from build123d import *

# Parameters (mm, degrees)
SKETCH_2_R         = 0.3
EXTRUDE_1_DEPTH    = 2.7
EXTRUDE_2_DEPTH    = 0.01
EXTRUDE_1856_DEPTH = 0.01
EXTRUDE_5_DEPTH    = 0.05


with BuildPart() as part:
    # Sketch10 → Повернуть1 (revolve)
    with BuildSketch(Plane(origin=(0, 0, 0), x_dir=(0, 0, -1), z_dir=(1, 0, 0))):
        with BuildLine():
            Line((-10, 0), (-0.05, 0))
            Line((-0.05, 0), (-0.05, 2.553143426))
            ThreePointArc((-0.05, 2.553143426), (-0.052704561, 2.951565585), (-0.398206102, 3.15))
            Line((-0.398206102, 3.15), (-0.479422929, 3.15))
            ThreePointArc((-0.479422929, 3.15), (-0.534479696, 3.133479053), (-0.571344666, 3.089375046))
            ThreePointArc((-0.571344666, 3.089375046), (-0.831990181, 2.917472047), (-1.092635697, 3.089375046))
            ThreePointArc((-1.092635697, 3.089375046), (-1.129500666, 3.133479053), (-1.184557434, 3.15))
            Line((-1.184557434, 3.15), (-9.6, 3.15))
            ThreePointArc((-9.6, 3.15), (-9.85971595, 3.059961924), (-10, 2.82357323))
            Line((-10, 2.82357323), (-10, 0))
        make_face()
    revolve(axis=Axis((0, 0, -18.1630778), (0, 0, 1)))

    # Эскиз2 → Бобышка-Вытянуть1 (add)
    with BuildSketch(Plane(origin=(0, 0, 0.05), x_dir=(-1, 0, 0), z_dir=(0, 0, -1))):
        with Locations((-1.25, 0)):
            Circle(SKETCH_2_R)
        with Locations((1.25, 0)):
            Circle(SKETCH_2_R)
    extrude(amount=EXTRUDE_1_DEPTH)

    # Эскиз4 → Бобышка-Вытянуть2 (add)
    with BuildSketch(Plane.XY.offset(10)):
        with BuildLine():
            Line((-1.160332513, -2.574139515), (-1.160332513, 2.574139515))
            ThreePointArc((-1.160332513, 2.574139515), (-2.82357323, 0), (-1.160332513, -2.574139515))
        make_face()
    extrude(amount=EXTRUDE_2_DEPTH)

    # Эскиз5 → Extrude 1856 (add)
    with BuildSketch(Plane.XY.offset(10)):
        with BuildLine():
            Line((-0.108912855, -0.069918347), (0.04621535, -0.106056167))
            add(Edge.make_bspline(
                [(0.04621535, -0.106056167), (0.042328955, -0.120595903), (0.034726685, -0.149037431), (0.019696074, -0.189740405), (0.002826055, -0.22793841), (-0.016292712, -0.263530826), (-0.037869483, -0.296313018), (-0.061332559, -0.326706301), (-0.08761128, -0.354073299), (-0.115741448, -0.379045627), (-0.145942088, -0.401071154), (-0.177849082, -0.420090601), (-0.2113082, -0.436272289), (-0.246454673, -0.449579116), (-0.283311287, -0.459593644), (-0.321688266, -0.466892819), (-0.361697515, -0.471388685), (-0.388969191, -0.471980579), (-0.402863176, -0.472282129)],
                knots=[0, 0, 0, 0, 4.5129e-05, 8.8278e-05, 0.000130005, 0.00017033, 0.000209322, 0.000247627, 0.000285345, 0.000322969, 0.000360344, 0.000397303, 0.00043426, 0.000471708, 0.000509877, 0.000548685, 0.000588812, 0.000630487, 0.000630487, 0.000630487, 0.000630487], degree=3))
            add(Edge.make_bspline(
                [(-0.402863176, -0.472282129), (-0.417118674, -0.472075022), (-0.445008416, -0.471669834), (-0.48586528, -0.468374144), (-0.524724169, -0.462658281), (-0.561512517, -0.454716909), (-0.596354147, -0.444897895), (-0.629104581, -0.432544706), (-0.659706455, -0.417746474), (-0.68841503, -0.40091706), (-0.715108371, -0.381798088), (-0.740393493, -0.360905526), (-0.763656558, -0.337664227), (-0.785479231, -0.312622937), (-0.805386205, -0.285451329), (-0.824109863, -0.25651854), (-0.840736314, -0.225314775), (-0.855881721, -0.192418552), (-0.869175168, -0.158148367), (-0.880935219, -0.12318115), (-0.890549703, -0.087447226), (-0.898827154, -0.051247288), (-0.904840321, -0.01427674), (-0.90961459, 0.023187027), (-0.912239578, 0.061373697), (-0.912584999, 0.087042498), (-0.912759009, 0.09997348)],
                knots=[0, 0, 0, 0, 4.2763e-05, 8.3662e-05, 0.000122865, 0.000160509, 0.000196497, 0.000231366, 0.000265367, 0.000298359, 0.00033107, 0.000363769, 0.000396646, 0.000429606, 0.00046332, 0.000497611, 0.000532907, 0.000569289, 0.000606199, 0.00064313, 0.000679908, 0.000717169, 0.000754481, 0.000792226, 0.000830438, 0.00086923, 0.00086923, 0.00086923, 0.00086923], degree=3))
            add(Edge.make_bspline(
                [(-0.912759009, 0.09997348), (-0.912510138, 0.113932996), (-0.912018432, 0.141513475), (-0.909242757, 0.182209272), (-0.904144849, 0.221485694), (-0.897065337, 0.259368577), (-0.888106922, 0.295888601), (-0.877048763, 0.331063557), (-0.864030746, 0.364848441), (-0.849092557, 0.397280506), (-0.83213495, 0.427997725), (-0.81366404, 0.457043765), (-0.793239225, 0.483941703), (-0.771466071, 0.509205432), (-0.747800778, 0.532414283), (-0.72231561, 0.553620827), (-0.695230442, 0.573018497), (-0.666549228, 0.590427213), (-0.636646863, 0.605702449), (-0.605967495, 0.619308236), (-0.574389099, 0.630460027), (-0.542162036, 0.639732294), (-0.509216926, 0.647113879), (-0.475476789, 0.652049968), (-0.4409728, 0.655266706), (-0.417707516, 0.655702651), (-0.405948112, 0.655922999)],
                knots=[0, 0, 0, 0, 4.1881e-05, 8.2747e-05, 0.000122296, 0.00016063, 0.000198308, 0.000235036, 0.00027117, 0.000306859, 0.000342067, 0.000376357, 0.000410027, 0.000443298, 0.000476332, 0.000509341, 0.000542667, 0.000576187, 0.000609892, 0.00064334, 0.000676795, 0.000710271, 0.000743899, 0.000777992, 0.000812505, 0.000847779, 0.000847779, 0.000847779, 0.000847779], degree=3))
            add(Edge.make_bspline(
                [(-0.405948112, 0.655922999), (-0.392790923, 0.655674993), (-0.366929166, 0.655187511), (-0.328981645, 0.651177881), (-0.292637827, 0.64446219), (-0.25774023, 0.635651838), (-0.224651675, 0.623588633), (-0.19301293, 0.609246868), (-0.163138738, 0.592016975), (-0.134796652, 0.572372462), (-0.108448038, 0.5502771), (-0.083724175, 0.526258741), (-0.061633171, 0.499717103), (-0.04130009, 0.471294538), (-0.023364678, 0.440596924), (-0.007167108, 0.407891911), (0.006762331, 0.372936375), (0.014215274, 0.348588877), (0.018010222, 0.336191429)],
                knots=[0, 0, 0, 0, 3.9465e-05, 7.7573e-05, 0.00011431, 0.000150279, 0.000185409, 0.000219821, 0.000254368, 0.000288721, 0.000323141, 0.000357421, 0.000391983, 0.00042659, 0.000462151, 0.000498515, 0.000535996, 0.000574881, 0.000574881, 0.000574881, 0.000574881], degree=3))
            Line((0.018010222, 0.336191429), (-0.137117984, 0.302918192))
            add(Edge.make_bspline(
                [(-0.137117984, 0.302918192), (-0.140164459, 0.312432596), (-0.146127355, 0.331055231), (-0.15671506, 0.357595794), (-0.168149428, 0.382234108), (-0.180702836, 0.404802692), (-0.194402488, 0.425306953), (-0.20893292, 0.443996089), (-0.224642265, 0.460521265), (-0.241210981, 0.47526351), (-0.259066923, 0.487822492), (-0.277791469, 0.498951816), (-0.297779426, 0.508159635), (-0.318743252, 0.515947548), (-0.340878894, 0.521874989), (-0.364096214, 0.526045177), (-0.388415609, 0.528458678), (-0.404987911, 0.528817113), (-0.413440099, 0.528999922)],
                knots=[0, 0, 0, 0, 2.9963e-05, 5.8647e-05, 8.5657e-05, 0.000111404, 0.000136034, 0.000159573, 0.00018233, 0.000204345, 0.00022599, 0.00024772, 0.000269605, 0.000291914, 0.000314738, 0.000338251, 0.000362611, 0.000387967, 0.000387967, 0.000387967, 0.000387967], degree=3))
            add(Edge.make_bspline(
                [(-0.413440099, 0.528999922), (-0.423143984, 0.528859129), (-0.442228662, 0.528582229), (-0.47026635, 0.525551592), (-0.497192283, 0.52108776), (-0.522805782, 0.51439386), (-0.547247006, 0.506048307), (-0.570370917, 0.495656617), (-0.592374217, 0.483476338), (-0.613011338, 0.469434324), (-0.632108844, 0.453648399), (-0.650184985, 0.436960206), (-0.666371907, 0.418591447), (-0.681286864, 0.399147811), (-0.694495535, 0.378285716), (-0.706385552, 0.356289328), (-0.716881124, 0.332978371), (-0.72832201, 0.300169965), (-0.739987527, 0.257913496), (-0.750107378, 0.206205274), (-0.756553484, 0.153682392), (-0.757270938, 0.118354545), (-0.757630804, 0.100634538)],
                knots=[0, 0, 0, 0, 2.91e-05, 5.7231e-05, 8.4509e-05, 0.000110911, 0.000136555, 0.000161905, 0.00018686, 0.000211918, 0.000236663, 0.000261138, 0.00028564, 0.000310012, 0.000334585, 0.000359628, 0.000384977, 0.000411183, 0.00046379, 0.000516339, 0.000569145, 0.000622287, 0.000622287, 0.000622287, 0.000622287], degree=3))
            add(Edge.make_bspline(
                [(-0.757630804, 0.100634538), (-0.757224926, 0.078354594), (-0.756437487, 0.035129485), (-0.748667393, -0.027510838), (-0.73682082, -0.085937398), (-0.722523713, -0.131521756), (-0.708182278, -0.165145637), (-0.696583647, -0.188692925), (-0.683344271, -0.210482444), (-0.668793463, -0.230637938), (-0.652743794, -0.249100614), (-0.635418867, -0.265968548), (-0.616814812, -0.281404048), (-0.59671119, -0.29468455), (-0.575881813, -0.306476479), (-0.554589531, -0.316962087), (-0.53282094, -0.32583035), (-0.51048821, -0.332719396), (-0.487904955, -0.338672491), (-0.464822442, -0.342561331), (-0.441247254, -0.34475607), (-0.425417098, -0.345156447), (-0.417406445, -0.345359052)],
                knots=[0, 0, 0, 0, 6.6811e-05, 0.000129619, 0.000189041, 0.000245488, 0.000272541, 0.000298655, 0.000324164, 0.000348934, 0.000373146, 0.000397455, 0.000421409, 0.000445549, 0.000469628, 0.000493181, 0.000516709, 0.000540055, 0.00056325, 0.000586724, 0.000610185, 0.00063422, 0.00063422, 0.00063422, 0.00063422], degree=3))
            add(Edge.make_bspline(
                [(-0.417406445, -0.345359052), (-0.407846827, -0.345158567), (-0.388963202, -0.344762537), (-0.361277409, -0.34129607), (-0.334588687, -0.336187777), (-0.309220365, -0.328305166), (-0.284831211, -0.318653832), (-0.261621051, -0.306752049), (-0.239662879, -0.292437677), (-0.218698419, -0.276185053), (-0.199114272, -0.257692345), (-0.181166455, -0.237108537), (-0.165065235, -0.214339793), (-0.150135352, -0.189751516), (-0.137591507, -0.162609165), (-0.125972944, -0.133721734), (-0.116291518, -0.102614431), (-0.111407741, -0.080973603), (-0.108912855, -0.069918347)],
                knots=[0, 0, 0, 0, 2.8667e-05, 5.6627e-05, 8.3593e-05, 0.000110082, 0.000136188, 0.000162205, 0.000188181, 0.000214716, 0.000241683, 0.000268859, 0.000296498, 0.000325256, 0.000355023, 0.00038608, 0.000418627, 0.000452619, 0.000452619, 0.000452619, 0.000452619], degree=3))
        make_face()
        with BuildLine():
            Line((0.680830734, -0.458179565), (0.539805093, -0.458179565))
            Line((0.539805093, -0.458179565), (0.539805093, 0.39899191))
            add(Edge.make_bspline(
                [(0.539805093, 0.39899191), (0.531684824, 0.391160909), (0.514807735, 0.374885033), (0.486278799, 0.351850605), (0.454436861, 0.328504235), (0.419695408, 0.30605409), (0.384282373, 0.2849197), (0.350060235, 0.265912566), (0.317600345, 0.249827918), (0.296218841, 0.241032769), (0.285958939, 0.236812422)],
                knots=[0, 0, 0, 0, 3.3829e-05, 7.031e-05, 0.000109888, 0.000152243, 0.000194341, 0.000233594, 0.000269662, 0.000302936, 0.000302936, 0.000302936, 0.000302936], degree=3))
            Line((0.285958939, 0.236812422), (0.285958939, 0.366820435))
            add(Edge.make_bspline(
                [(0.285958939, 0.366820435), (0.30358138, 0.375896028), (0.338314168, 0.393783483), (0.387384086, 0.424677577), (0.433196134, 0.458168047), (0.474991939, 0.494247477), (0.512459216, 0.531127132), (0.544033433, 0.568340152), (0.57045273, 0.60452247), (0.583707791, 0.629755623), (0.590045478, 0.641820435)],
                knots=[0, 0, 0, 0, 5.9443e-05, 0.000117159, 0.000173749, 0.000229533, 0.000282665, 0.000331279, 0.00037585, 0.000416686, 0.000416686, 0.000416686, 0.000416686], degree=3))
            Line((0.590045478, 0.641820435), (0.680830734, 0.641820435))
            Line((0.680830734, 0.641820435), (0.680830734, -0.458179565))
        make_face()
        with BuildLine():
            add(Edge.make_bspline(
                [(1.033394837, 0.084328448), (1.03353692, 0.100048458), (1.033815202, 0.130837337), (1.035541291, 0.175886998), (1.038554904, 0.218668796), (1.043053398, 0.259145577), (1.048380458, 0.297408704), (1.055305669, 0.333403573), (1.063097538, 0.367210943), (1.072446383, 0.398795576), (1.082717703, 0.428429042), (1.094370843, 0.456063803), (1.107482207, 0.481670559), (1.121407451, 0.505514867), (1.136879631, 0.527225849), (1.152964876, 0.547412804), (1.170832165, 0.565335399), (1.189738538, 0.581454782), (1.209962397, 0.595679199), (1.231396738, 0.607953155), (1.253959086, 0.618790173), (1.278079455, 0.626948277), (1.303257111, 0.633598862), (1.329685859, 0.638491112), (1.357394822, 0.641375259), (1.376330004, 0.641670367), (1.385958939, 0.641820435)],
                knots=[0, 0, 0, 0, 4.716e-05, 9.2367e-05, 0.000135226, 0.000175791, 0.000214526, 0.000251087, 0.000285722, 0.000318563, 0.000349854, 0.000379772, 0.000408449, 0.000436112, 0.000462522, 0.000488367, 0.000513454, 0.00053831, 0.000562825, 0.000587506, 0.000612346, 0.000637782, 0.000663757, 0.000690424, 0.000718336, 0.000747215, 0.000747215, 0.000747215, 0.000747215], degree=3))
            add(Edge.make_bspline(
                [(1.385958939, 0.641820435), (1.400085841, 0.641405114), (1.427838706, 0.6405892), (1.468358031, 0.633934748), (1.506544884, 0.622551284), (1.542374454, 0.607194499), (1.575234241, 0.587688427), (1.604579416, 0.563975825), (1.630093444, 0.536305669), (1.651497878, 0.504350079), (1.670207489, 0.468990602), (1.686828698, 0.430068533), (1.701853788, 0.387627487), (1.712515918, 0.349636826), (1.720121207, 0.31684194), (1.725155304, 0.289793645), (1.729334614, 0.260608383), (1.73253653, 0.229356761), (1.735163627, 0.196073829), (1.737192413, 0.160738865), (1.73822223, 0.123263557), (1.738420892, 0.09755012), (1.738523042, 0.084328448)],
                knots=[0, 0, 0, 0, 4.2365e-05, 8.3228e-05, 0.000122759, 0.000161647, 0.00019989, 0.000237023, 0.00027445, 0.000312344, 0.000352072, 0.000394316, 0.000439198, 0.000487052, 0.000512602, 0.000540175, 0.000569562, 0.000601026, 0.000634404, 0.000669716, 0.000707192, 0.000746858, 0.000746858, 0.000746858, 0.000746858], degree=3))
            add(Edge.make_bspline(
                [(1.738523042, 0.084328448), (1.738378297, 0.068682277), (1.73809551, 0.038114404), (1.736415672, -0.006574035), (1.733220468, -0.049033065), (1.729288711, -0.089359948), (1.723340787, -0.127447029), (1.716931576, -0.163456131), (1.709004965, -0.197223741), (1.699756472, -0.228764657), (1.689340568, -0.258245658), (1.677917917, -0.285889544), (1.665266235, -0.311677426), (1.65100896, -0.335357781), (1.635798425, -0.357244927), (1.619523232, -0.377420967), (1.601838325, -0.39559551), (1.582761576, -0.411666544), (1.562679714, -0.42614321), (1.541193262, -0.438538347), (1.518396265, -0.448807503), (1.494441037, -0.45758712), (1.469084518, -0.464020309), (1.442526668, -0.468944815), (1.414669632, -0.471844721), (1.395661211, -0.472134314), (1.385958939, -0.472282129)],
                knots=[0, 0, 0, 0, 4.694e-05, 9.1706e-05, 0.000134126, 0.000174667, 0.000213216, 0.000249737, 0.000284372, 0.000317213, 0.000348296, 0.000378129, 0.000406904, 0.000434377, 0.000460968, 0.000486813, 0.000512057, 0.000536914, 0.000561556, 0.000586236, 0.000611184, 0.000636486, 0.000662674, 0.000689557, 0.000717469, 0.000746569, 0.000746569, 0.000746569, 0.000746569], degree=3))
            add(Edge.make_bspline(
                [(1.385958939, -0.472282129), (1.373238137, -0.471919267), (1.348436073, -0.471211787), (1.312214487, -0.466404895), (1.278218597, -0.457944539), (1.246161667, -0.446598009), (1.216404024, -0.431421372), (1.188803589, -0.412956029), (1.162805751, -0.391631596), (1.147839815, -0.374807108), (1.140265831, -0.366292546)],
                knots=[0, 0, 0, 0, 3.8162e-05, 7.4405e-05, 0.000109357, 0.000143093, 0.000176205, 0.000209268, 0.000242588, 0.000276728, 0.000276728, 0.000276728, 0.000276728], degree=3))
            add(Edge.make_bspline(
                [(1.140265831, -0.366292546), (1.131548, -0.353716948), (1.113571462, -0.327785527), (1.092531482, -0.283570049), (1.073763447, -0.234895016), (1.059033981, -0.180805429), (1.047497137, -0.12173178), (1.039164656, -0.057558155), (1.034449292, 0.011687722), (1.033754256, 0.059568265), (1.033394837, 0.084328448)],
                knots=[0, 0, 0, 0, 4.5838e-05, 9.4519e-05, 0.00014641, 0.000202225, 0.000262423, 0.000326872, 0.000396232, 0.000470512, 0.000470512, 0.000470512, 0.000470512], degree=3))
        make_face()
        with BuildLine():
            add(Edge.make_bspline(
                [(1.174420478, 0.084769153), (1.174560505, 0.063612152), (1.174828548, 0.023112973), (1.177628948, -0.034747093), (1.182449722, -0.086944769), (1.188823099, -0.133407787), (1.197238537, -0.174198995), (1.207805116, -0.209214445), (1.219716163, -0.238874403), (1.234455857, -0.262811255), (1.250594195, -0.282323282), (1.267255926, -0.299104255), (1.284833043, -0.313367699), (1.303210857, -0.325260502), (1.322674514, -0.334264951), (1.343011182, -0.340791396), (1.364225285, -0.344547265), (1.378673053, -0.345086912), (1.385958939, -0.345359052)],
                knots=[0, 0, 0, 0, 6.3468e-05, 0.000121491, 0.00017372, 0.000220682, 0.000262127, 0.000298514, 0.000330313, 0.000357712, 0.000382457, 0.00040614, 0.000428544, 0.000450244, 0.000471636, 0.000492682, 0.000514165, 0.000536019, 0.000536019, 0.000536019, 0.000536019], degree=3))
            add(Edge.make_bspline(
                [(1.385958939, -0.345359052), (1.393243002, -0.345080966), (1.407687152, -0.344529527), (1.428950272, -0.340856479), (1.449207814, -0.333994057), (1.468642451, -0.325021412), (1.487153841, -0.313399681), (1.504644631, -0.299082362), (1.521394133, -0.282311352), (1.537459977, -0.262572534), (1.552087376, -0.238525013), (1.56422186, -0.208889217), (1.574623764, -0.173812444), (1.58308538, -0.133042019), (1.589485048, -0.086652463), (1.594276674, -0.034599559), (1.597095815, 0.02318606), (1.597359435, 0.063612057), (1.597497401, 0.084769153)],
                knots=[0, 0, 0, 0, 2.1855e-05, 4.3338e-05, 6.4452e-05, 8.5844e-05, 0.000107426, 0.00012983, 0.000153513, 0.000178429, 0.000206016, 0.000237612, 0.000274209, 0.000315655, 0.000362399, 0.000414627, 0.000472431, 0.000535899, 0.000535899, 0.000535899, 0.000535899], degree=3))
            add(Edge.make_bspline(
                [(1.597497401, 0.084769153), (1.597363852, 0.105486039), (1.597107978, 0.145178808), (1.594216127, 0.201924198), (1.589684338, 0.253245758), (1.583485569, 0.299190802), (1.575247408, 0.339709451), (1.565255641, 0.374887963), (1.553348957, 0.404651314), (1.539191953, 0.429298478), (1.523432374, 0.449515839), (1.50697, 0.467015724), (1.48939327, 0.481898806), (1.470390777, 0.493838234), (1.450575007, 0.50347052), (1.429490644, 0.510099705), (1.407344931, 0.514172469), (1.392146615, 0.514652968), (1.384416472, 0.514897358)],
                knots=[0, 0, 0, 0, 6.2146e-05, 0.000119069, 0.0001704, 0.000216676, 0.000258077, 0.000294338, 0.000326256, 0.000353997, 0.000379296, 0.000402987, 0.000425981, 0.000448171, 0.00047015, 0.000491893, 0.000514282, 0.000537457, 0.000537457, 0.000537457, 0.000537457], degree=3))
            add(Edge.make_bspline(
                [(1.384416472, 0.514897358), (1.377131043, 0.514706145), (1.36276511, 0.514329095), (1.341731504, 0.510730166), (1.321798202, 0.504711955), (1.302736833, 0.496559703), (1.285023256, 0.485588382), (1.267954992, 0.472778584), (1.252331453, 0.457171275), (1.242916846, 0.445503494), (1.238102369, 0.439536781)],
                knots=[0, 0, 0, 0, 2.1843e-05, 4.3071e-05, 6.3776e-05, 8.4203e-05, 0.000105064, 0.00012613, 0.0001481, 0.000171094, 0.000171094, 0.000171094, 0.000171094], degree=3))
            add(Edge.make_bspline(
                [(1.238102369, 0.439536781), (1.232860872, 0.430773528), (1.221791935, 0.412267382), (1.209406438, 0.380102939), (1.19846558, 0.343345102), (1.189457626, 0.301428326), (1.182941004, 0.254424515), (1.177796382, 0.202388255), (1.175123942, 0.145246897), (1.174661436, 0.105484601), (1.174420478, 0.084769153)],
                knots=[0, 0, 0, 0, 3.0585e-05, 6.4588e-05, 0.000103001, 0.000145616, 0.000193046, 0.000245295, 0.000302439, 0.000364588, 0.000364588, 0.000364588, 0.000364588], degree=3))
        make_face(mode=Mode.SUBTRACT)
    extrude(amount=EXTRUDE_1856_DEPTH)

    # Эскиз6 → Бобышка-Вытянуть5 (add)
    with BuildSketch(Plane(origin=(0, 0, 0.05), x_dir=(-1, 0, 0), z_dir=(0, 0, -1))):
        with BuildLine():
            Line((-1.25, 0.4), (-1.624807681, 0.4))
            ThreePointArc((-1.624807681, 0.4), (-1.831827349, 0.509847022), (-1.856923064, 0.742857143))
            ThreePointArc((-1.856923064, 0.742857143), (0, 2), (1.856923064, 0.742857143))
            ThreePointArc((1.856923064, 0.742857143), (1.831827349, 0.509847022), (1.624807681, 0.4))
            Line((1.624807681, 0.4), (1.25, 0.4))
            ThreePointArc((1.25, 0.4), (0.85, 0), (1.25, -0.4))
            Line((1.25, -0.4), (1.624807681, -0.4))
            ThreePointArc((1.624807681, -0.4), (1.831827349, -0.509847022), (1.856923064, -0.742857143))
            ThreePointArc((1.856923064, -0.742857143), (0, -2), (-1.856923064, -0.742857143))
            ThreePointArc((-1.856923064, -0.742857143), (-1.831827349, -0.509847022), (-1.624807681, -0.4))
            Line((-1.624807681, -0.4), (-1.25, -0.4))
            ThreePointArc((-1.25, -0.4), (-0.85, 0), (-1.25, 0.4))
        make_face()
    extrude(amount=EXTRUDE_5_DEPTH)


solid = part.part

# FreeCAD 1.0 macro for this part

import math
import FreeCAD as App
import Part
import Sketcher
from FreeCAD import Vector

doc = App.newDocument("Part")
body = doc.addObject("PartDesign::Body", "Body")

# Sketch on YZ plane
sketch1 = body.newObject("Sketcher::SketchObject", "Sketch")
sketch1.AttachmentSupport = (doc.getObject("YZ_Plane"), [""])
sketch1.MapMode = "FlatFace"
sketch1.addGeometry([
    Part.LineSegment(Vector(0, 10, 0), Vector(0, 0.05, 0)),  # 0
    Part.LineSegment(Vector(0, 0.05, 0), Vector(2.55, 0.05, 0)),  # 1
    Part.ArcOfCircle(Part.Circle(Vector(2.75, 0.4, 0), Vector(0, 0, 1), 0.4), math.radians(-119), math.radians(0)),  # 2
    Part.LineSegment(Vector(3.15, 0.4, 0), Vector(3.15, 0.48, 0)),  # 3
    Part.ArcOfCircle(Part.Circle(Vector(3.05, 0.48, 0), Vector(0, 0, 1), 0.1), math.radians(0), math.radians(67)),  # 4
    Part.ArcOfCircle(Part.Circle(Vector(3.2, 0.83, 0), Vector(0, 0, 1), 0.28), math.radians(113), math.radians(247)),  # 5
    Part.ArcOfCircle(Part.Circle(Vector(3.05, 1.18, 0), Vector(0, 0, 1), 0.1), math.radians(-67), math.radians(0)),  # 6
    Part.LineSegment(Vector(3.15, 1.18, 0), Vector(3.15, 9.6, 0)),  # 7
    Part.ArcOfCircle(Part.Circle(Vector(2.75, 9.61, 0), Vector(0, 0, 1), 0.4), math.radians(-1), math.radians(79)),  # 8
    Part.LineSegment(Vector(2.82, 10, 0), Vector(0, 10, 0)),  # 9
], False)
sketch1.addConstraint([
    Sketcher.Constraint("Coincident", 0, 2, 1, 1),
    Sketcher.Constraint("Coincident", 1, 2, 2, 1),
    Sketcher.Constraint("Tangent", 2, 2, 3, 1),
    Sketcher.Constraint("Tangent", 3, 2, 4, 1),
    Sketcher.Constraint("Tangent", 4, 2, 5, 2),
    Sketcher.Constraint("Tangent", 5, 1, 6, 1),
    Sketcher.Constraint("Tangent", 6, 2, 7, 1),
    Sketcher.Constraint("Coincident", 7, 2, 8, 1),
    Sketcher.Constraint("Coincident", 8, 2, 9, 1),
    Sketcher.Constraint("Coincident", 9, 2, 0, 1),
    Sketcher.Constraint("Vertical", 0),
    Sketcher.Constraint("Horizontal", 1),
    Sketcher.Constraint("Vertical", 3),
    Sketcher.Constraint("Vertical", 7),
    Sketcher.Constraint("Horizontal", 9),
    Sketcher.Constraint("Equal", 4, 6),
    Sketcher.Constraint("Equal", 2, 8),
    Sketcher.Constraint("PointOnObject", 0, 2, -2),
    Sketcher.Constraint("Vertical", 4, 3, 6, 3),
    Sketcher.Constraint("Radius", 2, 0.4),
    Sketcher.Constraint("Radius", 4, 0.1),
    Sketcher.Constraint("DistanceY", -1, 1, 8, 2, 10.0),
    Sketcher.Constraint("DistanceY", 0, 2, 0, 1, 9.95),
    Sketcher.Constraint("DistanceY", -1, 1, 7, 2, 9.6),
    Sketcher.Constraint("DistanceX", -1, 1, 2, 3, 2.75),
    Sketcher.Constraint("Radius", 5, 0.283552),
    Sketcher.Constraint("DistanceX", 8, 2, 5, 1, 0.265802),
    Sketcher.Constraint("DistanceX", 1, 1, 1, 2, 2.553143),
    Sketcher.Constraint("DistanceX", 9, 2, 9, 1, 2.823573),
    Sketcher.Constraint("DistanceY", 3, 1, 3, 2, 0.081217),
])
revolution = body.newObject("PartDesign::Revolution", "Revolution")
revolution.Profile = sketch1
revolution.ReferenceAxis = (sketch1, ["V_Axis"])
revolution.Angle = 360

# Sketch on XY plane
sketch2 = body.newObject("Sketcher::SketchObject", "Sketch001")
sketch2.AttachmentSupport = (doc.getObject("XY_Plane"), [""])
sketch2.MapMode = "FlatFace"
sketch2.AttachmentOffset = App.Placement(Vector(0, 0, 0.05), App.Rotation())
sketch2.addGeometry([
    Part.Circle(Vector(1.25, 0, 0), Vector(0, 0, 1), 0.3),
    Part.Circle(Vector(-1.25, 0, 0), Vector(0, 0, 1), 0.3),
], False)
sketch2.addConstraint([
    Sketcher.Constraint("Equal", 0, 1),
    Sketcher.Constraint("Symmetric", 0, 3, 1, 3, -1, 1),
    Sketcher.Constraint("PointOnObject", 0, 3, -1),
    Sketcher.Constraint("Diameter", 0, 0.6),
    Sketcher.Constraint("DistanceX", 1, 3, 0, 3, 2.5),
])
pad1 = body.newObject("PartDesign::Pad", "Pad")
pad1.Profile = sketch2
pad1.Length = 2.7
pad1.Reversed = True

# Sketch on XY plane
sketch3 = body.newObject("Sketcher::SketchObject", "Sketch002")
sketch3.AttachmentSupport = (doc.getObject("XY_Plane"), [""])
sketch3.MapMode = "FlatFace"
sketch3.AttachmentOffset = App.Placement(Vector(0, 0, 10), App.Rotation())
sketch3.addGeometry([
    Part.LineSegment(Vector(-1.2, -2.6, 0), Vector(-1.2, 2.6, 0)),
    Part.ArcOfCircle(Part.Circle(Vector(0, 0, 0), Vector(0, 0, 1), 2.8), math.radians(114), math.radians(246)),
], False)
sketch3.addConstraint([
    Sketcher.Constraint("Coincident", 0, 1, 1, 2),
    Sketcher.Constraint("Coincident", 1, 1, 0, 2),
    Sketcher.Constraint("Vertical", 0),
    Sketcher.Constraint("Coincident", 1, 3, -1, 1),
    Sketcher.Constraint("Radius", 1, 2.823573),
    Sketcher.Constraint("DistanceY", 0, 1, 0, 2, 5.148279),
])
pad2 = body.newObject("PartDesign::Pad", "Pad001")
pad2.Profile = sketch3
pad2.Length = 0.01

# Sketch on XY plane
sketch4 = body.newObject("Sketcher::SketchObject", "Sketch003")
sketch4.AttachmentSupport = (doc.getObject("XY_Plane"), [""])
sketch4.MapMode = "FlatFace"
sketch4.AttachmentOffset = App.Placement(Vector(0, 0, 10), App.Rotation())
sketch4.addGeometry([
    Part.LineSegment(Vector(0.046215, -0.106056, 0), Vector(-0.108913, -0.069918, 0)),  # 0
    Part.BSplineCurve([Vector(-0.417406, -0.345359, 0), Vector(-0.407847, -0.345159, 0), Vector(-0.388963, -0.344763, 0), Vector(-0.361277, -0.341296, 0), Vector(-0.334589, -0.336188, 0), Vector(-0.30922, -0.328305, 0), Vector(-0.284831, -0.318654, 0), Vector(-0.261621, -0.306752, 0), Vector(-0.239663, -0.292438, 0), Vector(-0.218698, -0.276185, 0), Vector(-0.199114, -0.257692, 0), Vector(-0.181166, -0.237109, 0), Vector(-0.165065, -0.21434, 0), Vector(-0.150135, -0.189752, 0), Vector(-0.137592, -0.162609, 0), Vector(-0.125973, -0.133722, 0), Vector(-0.116292, -0.102614, 0), Vector(-0.111408, -0.080974, 0), Vector(-0.108913, -0.069918, 0)], [4, 1, 1, 1, 1, 1, 1, 1, 1, 1, 1, 1, 1, 1, 1, 1, 4], [0, 0.000028667, 0.000056627, 0.000083593, 0.000110082, 0.000136188, 0.000162205, 0.000188181, 0.000214716, 0.000241683, 0.000268859, 0.000296498, 0.000325256, 0.000355023, 0.00038608, 0.000418627, 0.000452619], False, 3, [1, 1, 1, 1, 1, 1, 1, 1, 1, 1, 1, 1, 1, 1, 1, 1, 1, 1, 1], False),  # 1
    Part.BSplineCurve([Vector(-0.757631, 0.100635, 0), Vector(-0.757225, 0.078355, 0), Vector(-0.756437, 0.035129, 0), Vector(-0.748667, -0.027511, 0), Vector(-0.736821, -0.085937, 0), Vector(-0.722524, -0.131522, 0), Vector(-0.708182, -0.165146, 0), Vector(-0.696584, -0.188693, 0), Vector(-0.683344, -0.210482, 0), Vector(-0.668793, -0.230638, 0), Vector(-0.652744, -0.249101, 0), Vector(-0.635419, -0.265969, 0), Vector(-0.616815, -0.281404, 0), Vector(-0.596711, -0.294685, 0), Vector(-0.575882, -0.306476, 0), Vector(-0.55459, -0.316962, 0), Vector(-0.532821, -0.32583, 0), Vector(-0.510488, -0.332719, 0), Vector(-0.487905, -0.338672, 0), Vector(-0.464822, -0.342561, 0), Vector(-0.441247, -0.344756, 0), Vector(-0.425417, -0.345156, 0), Vector(-0.417406, -0.345359, 0)], [4, 1, 1, 1, 1, 1, 1, 1, 1, 1, 1, 1, 1, 1, 1, 1, 1, 1, 1, 1, 4], [0, 0.000066811, 0.000129619, 0.000189041, 0.000245488, 0.000272541, 0.000298655, 0.000324164, 0.000348934, 0.000373146, 0.000397455, 0.000421409, 0.000445549, 0.000469628, 0.000493181, 0.000516709, 0.000540055, 0.00056325, 0.000586724, 0.000610185, 0.00063422], False, 3, [1, 1, 1, 1, 1, 1, 1, 1, 1, 1, 1, 1, 1, 1, 1, 1, 1, 1, 1, 1, 1, 1, 1], False),  # 2
    Part.BSplineCurve([Vector(-0.41344, 0.529, 0), Vector(-0.423144, 0.528859, 0), Vector(-0.442229, 0.528582, 0), Vector(-0.470266, 0.525552, 0), Vector(-0.497192, 0.521088, 0), Vector(-0.522806, 0.514394, 0), Vector(-0.547247, 0.506048, 0), Vector(-0.570371, 0.495657, 0), Vector(-0.592374, 0.483476, 0), Vector(-0.613011, 0.469434, 0), Vector(-0.632109, 0.453648, 0), Vector(-0.650185, 0.43696, 0), Vector(-0.666372, 0.418591, 0), Vector(-0.681287, 0.399148, 0), Vector(-0.694496, 0.378286, 0), Vector(-0.706386, 0.356289, 0), Vector(-0.716881, 0.332978, 0), Vector(-0.728322, 0.30017, 0), Vector(-0.739988, 0.257913, 0), Vector(-0.750107, 0.206205, 0), Vector(-0.756553, 0.153682, 0), Vector(-0.757271, 0.118355, 0), Vector(-0.757631, 0.100635, 0)], [4, 1, 1, 1, 1, 1, 1, 1, 1, 1, 1, 1, 1, 1, 1, 1, 1, 1, 1, 1, 4], [0, 0.0000291, 0.000057231, 0.000084509, 0.000110911, 0.000136555, 0.000161905, 0.00018686, 0.000211918, 0.000236663, 0.000261138, 0.00028564, 0.000310012, 0.000334585, 0.000359628, 0.000384977, 0.000411183, 0.00046379, 0.000516339, 0.000569145, 0.000622287], False, 3, [1, 1, 1, 1, 1, 1, 1, 1, 1, 1, 1, 1, 1, 1, 1, 1, 1, 1, 1, 1, 1, 1, 1], False),  # 3
    Part.BSplineCurve([Vector(-0.137118, 0.302918, 0), Vector(-0.140164, 0.312433, 0), Vector(-0.146127, 0.331055, 0), Vector(-0.156715, 0.357596, 0), Vector(-0.168149, 0.382234, 0), Vector(-0.180703, 0.404803, 0), Vector(-0.194402, 0.425307, 0), Vector(-0.208933, 0.443996, 0), Vector(-0.224642, 0.460521, 0), Vector(-0.241211, 0.475264, 0), Vector(-0.259067, 0.487822, 0), Vector(-0.277791, 0.498952, 0), Vector(-0.297779, 0.50816, 0), Vector(-0.318743, 0.515948, 0), Vector(-0.340879, 0.521875, 0), Vector(-0.364096, 0.526045, 0), Vector(-0.388416, 0.528459, 0), Vector(-0.404988, 0.528817, 0), Vector(-0.41344, 0.529, 0)], [4, 1, 1, 1, 1, 1, 1, 1, 1, 1, 1, 1, 1, 1, 1, 1, 4], [0, 0.000029963, 0.000058647, 0.000085657, 0.000111404, 0.000136034, 0.000159573, 0.00018233, 0.000204345, 0.00022599, 0.00024772, 0.000269605, 0.000291914, 0.000314738, 0.000338251, 0.000362611, 0.000387967], False, 3, [1, 1, 1, 1, 1, 1, 1, 1, 1, 1, 1, 1, 1, 1, 1, 1, 1, 1, 1], False),  # 4
    Part.LineSegment(Vector(-0.137118, 0.302918, 0), Vector(0.01801, 0.336191, 0)),  # 5
    Part.BSplineCurve([Vector(-0.405948, 0.655923, 0), Vector(-0.392791, 0.655675, 0), Vector(-0.366929, 0.655188, 0), Vector(-0.328982, 0.651178, 0), Vector(-0.292638, 0.644462, 0), Vector(-0.25774, 0.635652, 0), Vector(-0.224652, 0.623589, 0), Vector(-0.193013, 0.609247, 0), Vector(-0.163139, 0.592017, 0), Vector(-0.134797, 0.572372, 0), Vector(-0.108448, 0.550277, 0), Vector(-0.083724, 0.526259, 0), Vector(-0.061633, 0.499717, 0), Vector(-0.0413, 0.471295, 0), Vector(-0.023365, 0.440597, 0), Vector(-0.007167, 0.407892, 0), Vector(0.006762, 0.372936, 0), Vector(0.014215, 0.348589, 0), Vector(0.01801, 0.336191, 0)], [4, 1, 1, 1, 1, 1, 1, 1, 1, 1, 1, 1, 1, 1, 1, 1, 4], [0, 0.000039465, 0.000077573, 0.00011431, 0.000150279, 0.000185409, 0.000219821, 0.000254368, 0.000288721, 0.000323141, 0.000357421, 0.000391983, 0.00042659, 0.000462151, 0.000498515, 0.000535996, 0.000574881], False, 3, [1, 1, 1, 1, 1, 1, 1, 1, 1, 1, 1, 1, 1, 1, 1, 1, 1, 1, 1], False),  # 6
    Part.BSplineCurve([Vector(-0.912759, 0.099973, 0), Vector(-0.91251, 0.113933, 0), Vector(-0.912018, 0.141513, 0), Vector(-0.909243, 0.182209, 0), Vector(-0.904145, 0.221486, 0), Vector(-0.897065, 0.259369, 0), Vector(-0.888107, 0.295889, 0), Vector(-0.877049, 0.331064, 0), Vector(-0.864031, 0.364848, 0), Vector(-0.849093, 0.397281, 0), Vector(-0.832135, 0.427998, 0), Vector(-0.813664, 0.457044, 0), Vector(-0.793239, 0.483942, 0), Vector(-0.771466, 0.509205, 0), Vector(-0.747801, 0.532414, 0), Vector(-0.722316, 0.553621, 0), Vector(-0.69523, 0.573018, 0), Vector(-0.666549, 0.590427, 0), Vector(-0.636647, 0.605702, 0), Vector(-0.605967, 0.619308, 0), Vector(-0.574389, 0.63046, 0), Vector(-0.542162, 0.639732, 0), Vector(-0.509217, 0.647114, 0), Vector(-0.475477, 0.65205, 0), Vector(-0.440973, 0.655267, 0), Vector(-0.417708, 0.655703, 0), Vector(-0.405948, 0.655923, 0)], [4, 1, 1, 1, 1, 1, 1, 1, 1, 1, 1, 1, 1, 1, 1, 1, 1, 1, 1, 1, 1, 1, 1, 1, 4], [0, 0.000041881, 0.000082747, 0.000122296, 0.00016063, 0.000198308, 0.000235036, 0.00027117, 0.000306859, 0.000342067, 0.000376357, 0.000410027, 0.000443298, 0.000476332, 0.000509341, 0.000542667, 0.000576187, 0.000609892, 0.00064334, 0.000676795, 0.000710271, 0.000743899, 0.000777992, 0.000812505, 0.000847779], False, 3, [1, 1, 1, 1, 1, 1, 1, 1, 1, 1, 1, 1, 1, 1, 1, 1, 1, 1, 1, 1, 1, 1, 1, 1, 1, 1, 1], False),  # 7
    Part.BSplineCurve([Vector(-0.402863, -0.472282, 0), Vector(-0.417119, -0.472075, 0), Vector(-0.445008, -0.47167, 0), Vector(-0.485865, -0.468374, 0), Vector(-0.524724, -0.462658, 0), Vector(-0.561513, -0.454717, 0), Vector(-0.596354, -0.444898, 0), Vector(-0.629105, -0.432545, 0), Vector(-0.659706, -0.417746, 0), Vector(-0.688415, -0.400917, 0), Vector(-0.715108, -0.381798, 0), Vector(-0.740393, -0.360906, 0), Vector(-0.763657, -0.337664, 0), Vector(-0.785479, -0.312623, 0), Vector(-0.805386, -0.285451, 0), Vector(-0.82411, -0.256519, 0), Vector(-0.840736, -0.225315, 0), Vector(-0.855882, -0.192419, 0), Vector(-0.869175, -0.158148, 0), Vector(-0.880935, -0.123181, 0), Vector(-0.89055, -0.087447, 0), Vector(-0.898827, -0.051247, 0), Vector(-0.90484, -0.014277, 0), Vector(-0.909615, 0.023187, 0), Vector(-0.91224, 0.061374, 0), Vector(-0.912585, 0.087042, 0), Vector(-0.912759, 0.099973, 0)], [4, 1, 1, 1, 1, 1, 1, 1, 1, 1, 1, 1, 1, 1, 1, 1, 1, 1, 1, 1, 1, 1, 1, 1, 4], [0, 0.000042763, 0.000083662, 0.000122865, 0.000160509, 0.000196497, 0.000231366, 0.000265367, 0.000298359, 0.00033107, 0.000363769, 0.000396646, 0.000429606, 0.00046332, 0.000497611, 0.000532907, 0.000569289, 0.000606199, 0.00064313, 0.000679908, 0.000717169, 0.000754481, 0.000792226, 0.000830438, 0.00086923], False, 3, [1, 1, 1, 1, 1, 1, 1, 1, 1, 1, 1, 1, 1, 1, 1, 1, 1, 1, 1, 1, 1, 1, 1, 1, 1, 1, 1], False),  # 8
    Part.BSplineCurve([Vector(0.046215, -0.106056, 0), Vector(0.042329, -0.120596, 0), Vector(0.034727, -0.149037, 0), Vector(0.019696, -0.18974, 0), Vector(0.002826, -0.227938, 0), Vector(-0.016293, -0.263531, 0), Vector(-0.037869, -0.296313, 0), Vector(-0.061333, -0.326706, 0), Vector(-0.087611, -0.354073, 0), Vector(-0.115741, -0.379046, 0), Vector(-0.145942, -0.401071, 0), Vector(-0.177849, -0.420091, 0), Vector(-0.211308, -0.436272, 0), Vector(-0.246455, -0.449579, 0), Vector(-0.283311, -0.459594, 0), Vector(-0.321688, -0.466893, 0), Vector(-0.361698, -0.471389, 0), Vector(-0.388969, -0.471981, 0), Vector(-0.402863, -0.472282, 0)], [4, 1, 1, 1, 1, 1, 1, 1, 1, 1, 1, 1, 1, 1, 1, 1, 4], [0, 0.000045129, 0.000088278, 0.000130005, 0.00017033, 0.000209322, 0.000247627, 0.000285345, 0.000322969, 0.000360344, 0.000397303, 0.00043426, 0.000471708, 0.000509877, 0.000548685, 0.000588812, 0.000630487], False, 3, [1, 1, 1, 1, 1, 1, 1, 1, 1, 1, 1, 1, 1, 1, 1, 1, 1, 1, 1], False),  # 9
    Part.LineSegment(Vector(0.539805, -0.45818, 0), Vector(0.680831, -0.45818, 0)),  # 10
    Part.LineSegment(Vector(0.680831, -0.45818, 0), Vector(0.680831, 0.64182, 0)),  # 11
    Part.LineSegment(Vector(0.680831, 0.64182, 0), Vector(0.590045, 0.64182, 0)),  # 12
    Part.BSplineCurve([Vector(0.285959, 0.36682, 0), Vector(0.303581, 0.375896, 0), Vector(0.338314, 0.393783, 0), Vector(0.387384, 0.424678, 0), Vector(0.433196, 0.458168, 0), Vector(0.474992, 0.494247, 0), Vector(0.512459, 0.531127, 0), Vector(0.544033, 0.56834, 0), Vector(0.570453, 0.604522, 0), Vector(0.583708, 0.629756, 0), Vector(0.590045, 0.64182, 0)], [4, 1, 1, 1, 1, 1, 1, 1, 4], [0, 0.000059443, 0.000117159, 0.000173749, 0.000229533, 0.000282665, 0.000331279, 0.00037585, 0.000416686], False, 3, [1, 1, 1, 1, 1, 1, 1, 1, 1, 1, 1], False),  # 13
    Part.LineSegment(Vector(0.285959, 0.36682, 0), Vector(0.285959, 0.236812, 0)),  # 14
    Part.BSplineCurve([Vector(0.539805, 0.398992, 0), Vector(0.531685, 0.391161, 0), Vector(0.514808, 0.374885, 0), Vector(0.486279, 0.351851, 0), Vector(0.454437, 0.328504, 0), Vector(0.419695, 0.306054, 0), Vector(0.384282, 0.28492, 0), Vector(0.35006, 0.265913, 0), Vector(0.3176, 0.249828, 0), Vector(0.296219, 0.241033, 0), Vector(0.285959, 0.236812, 0)], [4, 1, 1, 1, 1, 1, 1, 1, 4], [0, 0.000033829, 0.00007031, 0.000109888, 0.000152243, 0.000194341, 0.000233594, 0.000269662, 0.000302936], False, 3, [1, 1, 1, 1, 1, 1, 1, 1, 1, 1, 1], False),  # 15
    Part.LineSegment(Vector(0.539805, 0.398992, 0), Vector(0.539805, -0.45818, 0)),  # 16
    Part.BSplineCurve([Vector(1.033395, 0.084328, 0), Vector(1.033537, 0.100048, 0), Vector(1.033815, 0.130837, 0), Vector(1.035541, 0.175887, 0), Vector(1.038555, 0.218669, 0), Vector(1.043053, 0.259146, 0), Vector(1.04838, 0.297409, 0), Vector(1.055306, 0.333404, 0), Vector(1.063098, 0.367211, 0), Vector(1.072446, 0.398796, 0), Vector(1.082718, 0.428429, 0), Vector(1.094371, 0.456064, 0), Vector(1.107482, 0.481671, 0), Vector(1.121407, 0.505515, 0), Vector(1.13688, 0.527226, 0), Vector(1.152965, 0.547413, 0), Vector(1.170832, 0.565335, 0), Vector(1.189739, 0.581455, 0), Vector(1.209962, 0.595679, 0), Vector(1.231397, 0.607953, 0), Vector(1.253959, 0.61879, 0), Vector(1.278079, 0.626948, 0), Vector(1.303257, 0.633599, 0), Vector(1.329686, 0.638491, 0), Vector(1.357395, 0.641375, 0), Vector(1.37633, 0.64167, 0), Vector(1.385959, 0.64182, 0)], [4, 1, 1, 1, 1, 1, 1, 1, 1, 1, 1, 1, 1, 1, 1, 1, 1, 1, 1, 1, 1, 1, 1, 1, 4], [0, 0.00004716, 0.000092367, 0.000135226, 0.000175791, 0.000214526, 0.000251087, 0.000285722, 0.000318563, 0.000349854, 0.000379772, 0.000408449, 0.000436112, 0.000462522, 0.000488367, 0.000513454, 0.00053831, 0.000562825, 0.000587506, 0.000612346, 0.000637782, 0.000663757, 0.000690424, 0.000718336, 0.000747215], False, 3, [1, 1, 1, 1, 1, 1, 1, 1, 1, 1, 1, 1, 1, 1, 1, 1, 1, 1, 1, 1, 1, 1, 1, 1, 1, 1, 1], False),  # 17
    Part.BSplineCurve([Vector(1.140266, -0.366293, 0), Vector(1.131548, -0.353717, 0), Vector(1.113571, -0.327786, 0), Vector(1.092531, -0.28357, 0), Vector(1.073763, -0.234895, 0), Vector(1.059034, -0.180805, 0), Vector(1.047497, -0.121732, 0), Vector(1.039165, -0.057558, 0), Vector(1.034449, 0.011688, 0), Vector(1.033754, 0.059568, 0), Vector(1.033395, 0.084328, 0)], [4, 1, 1, 1, 1, 1, 1, 1, 4], [0, 0.000045838, 0.000094519, 0.00014641, 0.000202225, 0.000262423, 0.000326872, 0.000396232, 0.000470512], False, 3, [1, 1, 1, 1, 1, 1, 1, 1, 1, 1, 1], False),  # 18
    Part.BSplineCurve([Vector(1.385959, -0.472282, 0), Vector(1.373238, -0.471919, 0), Vector(1.348436, -0.471212, 0), Vector(1.312214, -0.466405, 0), Vector(1.278219, -0.457945, 0), Vector(1.246162, -0.446598, 0), Vector(1.216404, -0.431421, 0), Vector(1.188804, -0.412956, 0), Vector(1.162806, -0.391632, 0), Vector(1.14784, -0.374807, 0), Vector(1.140266, -0.366293, 0)], [4, 1, 1, 1, 1, 1, 1, 1, 4], [0, 0.000038162, 0.000074405, 0.000109357, 0.000143093, 0.000176205, 0.000209268, 0.000242588, 0.000276728], False, 3, [1, 1, 1, 1, 1, 1, 1, 1, 1, 1, 1], False),  # 19
    Part.BSplineCurve([Vector(1.738523, 0.084328, 0), Vector(1.738378, 0.068682, 0), Vector(1.738096, 0.038114, 0), Vector(1.736416, -0.006574, 0), Vector(1.73322, -0.049033, 0), Vector(1.729289, -0.08936, 0), Vector(1.723341, -0.127447, 0), Vector(1.716932, -0.163456, 0), Vector(1.709005, -0.197224, 0), Vector(1.699756, -0.228765, 0), Vector(1.689341, -0.258246, 0), Vector(1.677918, -0.28589, 0), Vector(1.665266, -0.311677, 0), Vector(1.651009, -0.335358, 0), Vector(1.635798, -0.357245, 0), Vector(1.619523, -0.377421, 0), Vector(1.601838, -0.395596, 0), Vector(1.582762, -0.411667, 0), Vector(1.56268, -0.426143, 0), Vector(1.541193, -0.438538, 0), Vector(1.518396, -0.448808, 0), Vector(1.494441, -0.457587, 0), Vector(1.469085, -0.46402, 0), Vector(1.442527, -0.468945, 0), Vector(1.41467, -0.471845, 0), Vector(1.395661, -0.472134, 0), Vector(1.385959, -0.472282, 0)], [4, 1, 1, 1, 1, 1, 1, 1, 1, 1, 1, 1, 1, 1, 1, 1, 1, 1, 1, 1, 1, 1, 1, 1, 4], [0, 0.00004694, 0.000091706, 0.000134126, 0.000174667, 0.000213216, 0.000249737, 0.000284372, 0.000317213, 0.000348296, 0.000378129, 0.000406904, 0.000434377, 0.000460968, 0.000486813, 0.000512057, 0.000536914, 0.000561556, 0.000586236, 0.000611184, 0.000636486, 0.000662674, 0.000689557, 0.000717469, 0.000746569], False, 3, [1, 1, 1, 1, 1, 1, 1, 1, 1, 1, 1, 1, 1, 1, 1, 1, 1, 1, 1, 1, 1, 1, 1, 1, 1, 1, 1], False),  # 20
    Part.BSplineCurve([Vector(1.385959, 0.64182, 0), Vector(1.400086, 0.641405, 0), Vector(1.427839, 0.640589, 0), Vector(1.468358, 0.633935, 0), Vector(1.506545, 0.622551, 0), Vector(1.542374, 0.607194, 0), Vector(1.575234, 0.587688, 0), Vector(1.604579, 0.563976, 0), Vector(1.630093, 0.536306, 0), Vector(1.651498, 0.50435, 0), Vector(1.670207, 0.468991, 0), Vector(1.686829, 0.430069, 0), Vector(1.701854, 0.387627, 0), Vector(1.712516, 0.349637, 0), Vector(1.720121, 0.316842, 0), Vector(1.725155, 0.289794, 0), Vector(1.729335, 0.260608, 0), Vector(1.732537, 0.229357, 0), Vector(1.735164, 0.196074, 0), Vector(1.737192, 0.160739, 0), Vector(1.738222, 0.123264, 0), Vector(1.738421, 0.09755, 0), Vector(1.738523, 0.084328, 0)], [4, 1, 1, 1, 1, 1, 1, 1, 1, 1, 1, 1, 1, 1, 1, 1, 1, 1, 1, 1, 4], [0, 0.000042365, 0.000083228, 0.000122759, 0.000161647, 0.00019989, 0.000237023, 0.00027445, 0.000312344, 0.000352072, 0.000394316, 0.000439198, 0.000487052, 0.000512602, 0.000540175, 0.000569562, 0.000601026, 0.000634404, 0.000669716, 0.000707192, 0.000746858], False, 3, [1, 1, 1, 1, 1, 1, 1, 1, 1, 1, 1, 1, 1, 1, 1, 1, 1, 1, 1, 1, 1, 1, 1], False),  # 21
    Part.BSplineCurve([Vector(1.238102, 0.439537, 0), Vector(1.232861, 0.430774, 0), Vector(1.221792, 0.412267, 0), Vector(1.209406, 0.380103, 0), Vector(1.198466, 0.343345, 0), Vector(1.189458, 0.301428, 0), Vector(1.182941, 0.254425, 0), Vector(1.177796, 0.202388, 0), Vector(1.175124, 0.145247, 0), Vector(1.174661, 0.105485, 0), Vector(1.17442, 0.084769, 0)], [4, 1, 1, 1, 1, 1, 1, 1, 4], [0, 0.000030585, 0.000064588, 0.000103001, 0.000145616, 0.000193046, 0.000245295, 0.000302439, 0.000364588], False, 3, [1, 1, 1, 1, 1, 1, 1, 1, 1, 1, 1], False),  # 22
    Part.BSplineCurve([Vector(1.384416, 0.514897, 0), Vector(1.377131, 0.514706, 0), Vector(1.362765, 0.514329, 0), Vector(1.341732, 0.51073, 0), Vector(1.321798, 0.504712, 0), Vector(1.302737, 0.49656, 0), Vector(1.285023, 0.485588, 0), Vector(1.267955, 0.472779, 0), Vector(1.252331, 0.457171, 0), Vector(1.242917, 0.445503, 0), Vector(1.238102, 0.439537, 0)], [4, 1, 1, 1, 1, 1, 1, 1, 4], [0, 0.000021843, 0.000043071, 0.000063776, 0.000084203, 0.000105064, 0.00012613, 0.0001481, 0.000171094], False, 3, [1, 1, 1, 1, 1, 1, 1, 1, 1, 1, 1], False),  # 23
    Part.BSplineCurve([Vector(1.597497, 0.084769, 0), Vector(1.597364, 0.105486, 0), Vector(1.597108, 0.145179, 0), Vector(1.594216, 0.201924, 0), Vector(1.589684, 0.253246, 0), Vector(1.583486, 0.299191, 0), Vector(1.575247, 0.339709, 0), Vector(1.565256, 0.374888, 0), Vector(1.553349, 0.404651, 0), Vector(1.539192, 0.429298, 0), Vector(1.523432, 0.449516, 0), Vector(1.50697, 0.467016, 0), Vector(1.489393, 0.481899, 0), Vector(1.470391, 0.493838, 0), Vector(1.450575, 0.503471, 0), Vector(1.429491, 0.5101, 0), Vector(1.407345, 0.514172, 0), Vector(1.392147, 0.514653, 0), Vector(1.384416, 0.514897, 0)], [4, 1, 1, 1, 1, 1, 1, 1, 1, 1, 1, 1, 1, 1, 1, 1, 4], [0, 0.000062146, 0.000119069, 0.0001704, 0.000216676, 0.000258077, 0.000294338, 0.000326256, 0.000353997, 0.000379296, 0.000402987, 0.000425981, 0.000448171, 0.00047015, 0.000491893, 0.000514282, 0.000537457], False, 3, [1, 1, 1, 1, 1, 1, 1, 1, 1, 1, 1, 1, 1, 1, 1, 1, 1, 1, 1], False),  # 24
    Part.BSplineCurve([Vector(1.385959, -0.345359, 0), Vector(1.393243, -0.345081, 0), Vector(1.407687, -0.34453, 0), Vector(1.42895, -0.340856, 0), Vector(1.449208, -0.333994, 0), Vector(1.468642, -0.325021, 0), Vector(1.487154, -0.3134, 0), Vector(1.504645, -0.299082, 0), Vector(1.521394, -0.282311, 0), Vector(1.53746, -0.262573, 0), Vector(1.552087, -0.238525, 0), Vector(1.564222, -0.208889, 0), Vector(1.574624, -0.173812, 0), Vector(1.583085, -0.133042, 0), Vector(1.589485, -0.086652, 0), Vector(1.594277, -0.0346, 0), Vector(1.597096, 0.023186, 0), Vector(1.597359, 0.063612, 0), Vector(1.597497, 0.084769, 0)], [4, 1, 1, 1, 1, 1, 1, 1, 1, 1, 1, 1, 1, 1, 1, 1, 4], [0, 0.000021855, 0.000043338, 0.000064452, 0.000085844, 0.000107426, 0.00012983, 0.000153513, 0.000178429, 0.000206016, 0.000237612, 0.000274209, 0.000315655, 0.000362399, 0.000414627, 0.000472431, 0.000535899], False, 3, [1, 1, 1, 1, 1, 1, 1, 1, 1, 1, 1, 1, 1, 1, 1, 1, 1, 1, 1], False),  # 25
    Part.BSplineCurve([Vector(1.17442, 0.084769, 0), Vector(1.174561, 0.063612, 0), Vector(1.174829, 0.023113, 0), Vector(1.177629, -0.034747, 0), Vector(1.18245, -0.086945, 0), Vector(1.188823, -0.133408, 0), Vector(1.197239, -0.174199, 0), Vector(1.207805, -0.209214, 0), Vector(1.219716, -0.238874, 0), Vector(1.234456, -0.262811, 0), Vector(1.250594, -0.282323, 0), Vector(1.267256, -0.299104, 0), Vector(1.284833, -0.313368, 0), Vector(1.303211, -0.325261, 0), Vector(1.322675, -0.334265, 0), Vector(1.343011, -0.340791, 0), Vector(1.364225, -0.344547, 0), Vector(1.378673, -0.345087, 0), Vector(1.385959, -0.345359, 0)], [4, 1, 1, 1, 1, 1, 1, 1, 1, 1, 1, 1, 1, 1, 1, 1, 4], [0, 0.000063468, 0.000121491, 0.00017372, 0.000220682, 0.000262127, 0.000298514, 0.000330313, 0.000357712, 0.000382457, 0.00040614, 0.000428544, 0.000450244, 0.000471636, 0.000492682, 0.000514165, 0.000536019], False, 3, [1, 1, 1, 1, 1, 1, 1, 1, 1, 1, 1, 1, 1, 1, 1, 1, 1, 1, 1], False),  # 26
], False)
sketch4.addConstraint([
    Sketcher.Constraint("Block", 1),
    Sketcher.Constraint("Block", 2),
    Sketcher.Constraint("Block", 3),
    Sketcher.Constraint("Block", 4),
    Sketcher.Constraint("Block", 6),
    Sketcher.Constraint("Block", 7),
    Sketcher.Constraint("Block", 8),
    Sketcher.Constraint("Block", 9),
    Sketcher.Constraint("Block", 13),
    Sketcher.Constraint("Block", 15),
    Sketcher.Constraint("Block", 17),
    Sketcher.Constraint("Block", 18),
    Sketcher.Constraint("Block", 19),
    Sketcher.Constraint("Block", 20),
    Sketcher.Constraint("Block", 21),
    Sketcher.Constraint("Block", 22),
    Sketcher.Constraint("Block", 23),
    Sketcher.Constraint("Block", 24),
    Sketcher.Constraint("Block", 25),
    Sketcher.Constraint("Block", 26),
    Sketcher.Constraint("Coincident", 0, 2, 1, 2),
    Sketcher.Constraint("Coincident", 4, 1, 5, 1),
    Sketcher.Constraint("Coincident", 5, 2, 6, 2),
    Sketcher.Constraint("Coincident", 9, 1, 0, 1),
    Sketcher.Constraint("Coincident", 10, 2, 11, 1),
    Sketcher.Constraint("Coincident", 11, 2, 12, 1),
    Sketcher.Constraint("Coincident", 12, 2, 13, 2),
    Sketcher.Constraint("Coincident", 13, 1, 14, 1),
    Sketcher.Constraint("Coincident", 14, 2, 15, 2),
    Sketcher.Constraint("Coincident", 15, 1, 16, 1),
    Sketcher.Constraint("Coincident", 16, 2, 10, 1),
    Sketcher.Constraint("Horizontal", 10),
    Sketcher.Constraint("Vertical", 11),
    Sketcher.Constraint("Horizontal", 12),
    Sketcher.Constraint("Vertical", 16),
    Sketcher.Constraint("DistanceY", 11, 1, 11, 2, 1.1),
    Sketcher.Constraint("DistanceX", 10, 1, 10, 2, 0.141026),
])
pad3 = body.newObject("PartDesign::Pad", "Pad002")
pad3.Profile = sketch4
pad3.Length = 0.01

# Sketch on XY plane
sketch5 = body.newObject("Sketcher::SketchObject", "Sketch004")
sketch5.AttachmentSupport = (doc.getObject("XY_Plane"), [""])
sketch5.MapMode = "FlatFace"
sketch5.AttachmentOffset = App.Placement(Vector(0, 0, 0.05), App.Rotation())
sketch5.addGeometry([
    Part.LineSegment(Vector(1.62, 0.4, 0), Vector(1.25, 0.4, 0)),  # 0
    Part.ArcOfCircle(Part.Circle(Vector(1.25, 0, 0), Vector(0, 0, 1), 0.4), math.radians(90), math.radians(270)),  # 1
    Part.LineSegment(Vector(1.25, -0.4, 0), Vector(1.62, -0.4, 0)),  # 2
    Part.ArcOfCircle(Part.Circle(Vector(1.62, -0.65, 0), Vector(0, 0, 1), 0.25), math.radians(-22), math.radians(90)),  # 3
    Part.ArcOfCircle(Part.Circle(Vector(0, 0, 0), Vector(0, 0, 1), 2), math.radians(-158), math.radians(-22)),  # 4
    Part.ArcOfCircle(Part.Circle(Vector(-1.62, -0.65, 0), Vector(0, 0, 1), 0.25), math.radians(90), math.radians(202)),  # 5
    Part.LineSegment(Vector(-1.62, -0.4, 0), Vector(-1.25, -0.4, 0)),  # 6
    Part.ArcOfCircle(Part.Circle(Vector(-1.25, 0, 0), Vector(0, 0, 1), 0.4), math.radians(-90), math.radians(90)),  # 7
    Part.LineSegment(Vector(-1.25, 0.4, 0), Vector(-1.62, 0.4, 0)),  # 8
    Part.ArcOfCircle(Part.Circle(Vector(-1.62, 0.65, 0), Vector(0, 0, 1), 0.25), math.radians(158), math.radians(270)),  # 9
    Part.ArcOfCircle(Part.Circle(Vector(0, 0, 0), Vector(0, 0, 1), 2), math.radians(22), math.radians(158)),  # 10
    Part.ArcOfCircle(Part.Circle(Vector(1.62, 0.65, 0), Vector(0, 0, 1), 0.25), math.radians(-90), math.radians(22)),  # 11
], False)
sketch5.addConstraint([
    Sketcher.Constraint("Tangent", 0, 2, 1, 1),
    Sketcher.Constraint("Tangent", 1, 2, 2, 1),
    Sketcher.Constraint("Tangent", 2, 2, 3, 2),
    Sketcher.Constraint("Tangent", 3, 1, 4, 2),
    Sketcher.Constraint("Tangent", 4, 1, 5, 2),
    Sketcher.Constraint("Tangent", 5, 1, 6, 1),
    Sketcher.Constraint("Tangent", 6, 2, 7, 1),
    Sketcher.Constraint("Tangent", 7, 2, 8, 1),
    Sketcher.Constraint("Tangent", 8, 2, 9, 2),
    Sketcher.Constraint("Tangent", 9, 1, 10, 2),
    Sketcher.Constraint("Tangent", 10, 1, 11, 2),
    Sketcher.Constraint("Tangent", 11, 1, 0, 1),
    Sketcher.Constraint("Horizontal", 0),
    Sketcher.Constraint("Horizontal", 2),
    Sketcher.Constraint("Horizontal", 6),
    Sketcher.Constraint("Horizontal", 8),
    Sketcher.Constraint("Coincident", 4, 3, -1, 1),
    Sketcher.Constraint("Coincident", 10, 3, -1, 1),
    Sketcher.Constraint("Equal", 3, 5),
    Sketcher.Constraint("Equal", 1, 7),
    Sketcher.Constraint("Equal", 5, 9),
    Sketcher.Constraint("Equal", 4, 10),
    Sketcher.Constraint("Equal", 9, 11),
    Sketcher.Constraint("Symmetric", 1, 3, 7, 3, -1, 1),
    Sketcher.Constraint("PointOnObject", 1, 3, -1),
    Sketcher.Constraint("Radius", 4, 2.0),
    Sketcher.Constraint("Radius", 1, 0.4),
    Sketcher.Constraint("Radius", 3, 0.25),
    Sketcher.Constraint("DistanceX", 7, 3, 1, 3, 2.5),
])
pad4 = body.newObject("PartDesign::Pad", "Pad003")
pad4.Profile = sketch5
pad4.Length = 0.05
pad4.Reversed = True

doc.recompute()
